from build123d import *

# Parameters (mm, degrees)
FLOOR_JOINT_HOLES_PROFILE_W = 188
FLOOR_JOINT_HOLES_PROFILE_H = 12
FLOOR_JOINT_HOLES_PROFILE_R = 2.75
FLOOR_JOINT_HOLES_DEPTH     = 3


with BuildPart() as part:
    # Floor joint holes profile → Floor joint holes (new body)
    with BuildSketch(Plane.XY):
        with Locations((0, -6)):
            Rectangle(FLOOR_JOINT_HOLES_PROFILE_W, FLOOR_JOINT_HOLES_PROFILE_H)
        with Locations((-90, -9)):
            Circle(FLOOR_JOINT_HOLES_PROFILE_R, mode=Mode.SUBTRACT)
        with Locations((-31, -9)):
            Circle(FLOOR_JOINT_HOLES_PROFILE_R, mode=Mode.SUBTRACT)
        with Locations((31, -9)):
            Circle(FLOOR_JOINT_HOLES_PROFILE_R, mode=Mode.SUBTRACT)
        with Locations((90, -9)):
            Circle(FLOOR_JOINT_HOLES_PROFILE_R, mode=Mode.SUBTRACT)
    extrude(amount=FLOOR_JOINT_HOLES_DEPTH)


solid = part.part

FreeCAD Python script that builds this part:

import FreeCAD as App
import Part
import Sketcher
Q = App.Units.Quantity

doc = App.newDocument("Part")
body = doc.addObject("PartDesign::Body", "Body")

sketch1 = body.newObject("Sketcher::SketchObject", "Sketch")
sketch1.AttachmentSupport = (doc.getObject("XY_Plane"), [""])
sketch1.MapMode = "FlatFace"
sketch1.addGeometry([
    Part.LineSegment(App.Vector(-94, 0, 0), App.Vector(-94, -12, 0)),
    Part.LineSegment(App.Vector(-94, -12, 0), App.Vector(94, -12, 0)),
    Part.LineSegment(App.Vector(94, -12, 0), App.Vector(94, 0, 0)),
    Part.LineSegment(App.Vector(94, 0, 0), App.Vector(-94, 0, 0)),
    Part.Circle(App.Vector(-90, -9, 0), App.Vector(0, 0, 1), 2.8),
    Part.Circle(App.Vector(-31, -9, 0), App.Vector(0, 0, 1), 2.8),
    Part.Circle(App.Vector(31, -9, 0), App.Vector(0, 0, 1), 2.8),
    Part.Circle(App.Vector(90, -9, 0), App.Vector(0, 0, 1), 2.8),
], False)
sketch1.addConstraint([
    Sketcher.Constraint("Coincident", 0, 2, 1, 1),
    Sketcher.Constraint("Coincident", 1, 2, 2, 1),
    Sketcher.Constraint("Coincident", 2, 2, 3, 1),
    Sketcher.Constraint("Coincident", 3, 2, 0, 1),
    Sketcher.Constraint("Vertical", 0),
    Sketcher.Constraint("Horizontal", 1),
    Sketcher.Constraint("Vertical", 2),
    Sketcher.Constraint("Horizontal", 3),
    Sketcher.Constraint("Equal", 4, 5),
    Sketcher.Constraint("Equal", 5, 6),
    Sketcher.Constraint("Equal", 6, 7),
    Sketcher.Constraint("Symmetric", 2, 2, 3, 2, -1, 1),
    Sketcher.Constraint("Symmetric", 5, 3, 6, 3, -2),
    Sketcher.Constraint("Symmetric", 4, 3, 7, 3, -2),
    Sketcher.Constraint("Horizontal", 4, 3, 5, 3),
    Sketcher.Constraint("Diameter", 4, Q("5.5 mm")),
    Sketcher.Constraint("DistanceX", 1, 1, 1, 2, Q("188 mm")),
    Sketcher.Constraint("DistanceY", 0, 2, 0, 1, Q("12 mm")),
    Sketcher.Constraint("DistanceX", 4, 3, -1, 1, Q("90 mm")),
    Sketcher.Constraint("DistanceY", 4, 3, -1, 1, Q("9 mm")),
    Sketcher.Constraint("DistanceX", 5, 3, -1, 1, Q("31 mm")),
])
pad1 = body.newObject("PartDesign::Pad", "Pad")
pad1.Profile = sketch1
pad1.Length = 3

doc.recompute()
